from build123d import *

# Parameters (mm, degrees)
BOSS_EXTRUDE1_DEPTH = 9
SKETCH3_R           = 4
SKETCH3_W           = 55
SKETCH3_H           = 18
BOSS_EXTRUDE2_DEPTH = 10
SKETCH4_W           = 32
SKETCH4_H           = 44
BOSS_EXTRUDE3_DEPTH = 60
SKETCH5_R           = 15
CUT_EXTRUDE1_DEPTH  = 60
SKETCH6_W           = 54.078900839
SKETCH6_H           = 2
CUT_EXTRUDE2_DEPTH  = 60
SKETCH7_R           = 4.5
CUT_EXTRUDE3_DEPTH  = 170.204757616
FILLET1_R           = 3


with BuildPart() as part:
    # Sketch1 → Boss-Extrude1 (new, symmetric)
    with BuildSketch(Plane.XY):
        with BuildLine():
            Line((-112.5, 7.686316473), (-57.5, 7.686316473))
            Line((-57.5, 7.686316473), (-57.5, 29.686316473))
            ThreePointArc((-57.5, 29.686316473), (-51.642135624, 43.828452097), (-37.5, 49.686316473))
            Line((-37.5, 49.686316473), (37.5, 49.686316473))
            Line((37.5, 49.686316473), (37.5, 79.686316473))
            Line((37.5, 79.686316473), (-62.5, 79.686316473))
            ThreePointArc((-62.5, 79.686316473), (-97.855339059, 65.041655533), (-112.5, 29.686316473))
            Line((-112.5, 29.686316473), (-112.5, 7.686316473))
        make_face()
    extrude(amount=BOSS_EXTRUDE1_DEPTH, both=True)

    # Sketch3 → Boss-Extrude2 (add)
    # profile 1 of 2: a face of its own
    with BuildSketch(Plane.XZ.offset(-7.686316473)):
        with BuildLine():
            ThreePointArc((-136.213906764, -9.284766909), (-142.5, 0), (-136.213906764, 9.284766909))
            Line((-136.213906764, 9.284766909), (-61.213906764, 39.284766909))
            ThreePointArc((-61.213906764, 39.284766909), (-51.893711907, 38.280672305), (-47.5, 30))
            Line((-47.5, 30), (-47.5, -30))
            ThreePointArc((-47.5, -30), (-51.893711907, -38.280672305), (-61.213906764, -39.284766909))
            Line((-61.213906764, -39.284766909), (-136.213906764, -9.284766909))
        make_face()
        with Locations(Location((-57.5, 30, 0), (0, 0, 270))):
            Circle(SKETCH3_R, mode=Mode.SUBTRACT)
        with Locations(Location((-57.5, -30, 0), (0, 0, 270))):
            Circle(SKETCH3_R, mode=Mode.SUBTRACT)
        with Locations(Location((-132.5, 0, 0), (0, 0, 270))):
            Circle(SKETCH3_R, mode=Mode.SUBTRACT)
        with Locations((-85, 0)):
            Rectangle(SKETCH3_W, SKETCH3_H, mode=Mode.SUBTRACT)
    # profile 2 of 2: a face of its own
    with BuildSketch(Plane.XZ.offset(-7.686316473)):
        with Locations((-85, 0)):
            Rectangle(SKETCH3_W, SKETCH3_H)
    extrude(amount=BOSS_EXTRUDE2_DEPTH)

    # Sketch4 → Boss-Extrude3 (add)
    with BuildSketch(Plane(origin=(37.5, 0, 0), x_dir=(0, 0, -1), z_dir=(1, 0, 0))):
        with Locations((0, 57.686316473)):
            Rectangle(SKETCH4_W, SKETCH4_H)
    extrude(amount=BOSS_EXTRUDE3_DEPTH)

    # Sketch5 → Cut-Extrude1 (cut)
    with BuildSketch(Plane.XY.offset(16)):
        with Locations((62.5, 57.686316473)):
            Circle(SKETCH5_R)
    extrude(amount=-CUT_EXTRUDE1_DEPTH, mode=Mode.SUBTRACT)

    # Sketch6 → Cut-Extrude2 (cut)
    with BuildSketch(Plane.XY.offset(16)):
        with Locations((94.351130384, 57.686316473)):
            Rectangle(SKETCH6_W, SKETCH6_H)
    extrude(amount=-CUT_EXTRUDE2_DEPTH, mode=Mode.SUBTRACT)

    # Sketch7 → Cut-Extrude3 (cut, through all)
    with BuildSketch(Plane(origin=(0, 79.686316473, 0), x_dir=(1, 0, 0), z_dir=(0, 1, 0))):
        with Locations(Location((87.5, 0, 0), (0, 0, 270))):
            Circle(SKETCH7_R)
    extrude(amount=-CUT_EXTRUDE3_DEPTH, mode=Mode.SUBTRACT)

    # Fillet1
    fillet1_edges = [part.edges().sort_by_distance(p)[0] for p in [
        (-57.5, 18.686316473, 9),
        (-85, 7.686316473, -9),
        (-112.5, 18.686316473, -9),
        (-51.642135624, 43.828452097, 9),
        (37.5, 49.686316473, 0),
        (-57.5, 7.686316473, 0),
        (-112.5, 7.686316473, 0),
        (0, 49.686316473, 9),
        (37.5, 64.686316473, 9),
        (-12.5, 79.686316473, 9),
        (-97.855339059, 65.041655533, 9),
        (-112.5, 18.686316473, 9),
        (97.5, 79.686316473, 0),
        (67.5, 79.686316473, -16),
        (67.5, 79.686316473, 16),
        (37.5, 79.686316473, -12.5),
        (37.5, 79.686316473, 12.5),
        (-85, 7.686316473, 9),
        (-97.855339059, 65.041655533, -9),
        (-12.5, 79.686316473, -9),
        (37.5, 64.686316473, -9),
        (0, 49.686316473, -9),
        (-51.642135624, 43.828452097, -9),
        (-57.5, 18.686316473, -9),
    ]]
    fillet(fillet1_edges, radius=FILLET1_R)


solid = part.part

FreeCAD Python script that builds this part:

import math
import FreeCAD as App
import Part
import Sketcher


def edges_at(feature, points):
    """Names of the edges that pass closest to the given points."""
    edges = feature.Shape.Edges
    near = lambda p: min(range(len(edges)), key=lambda i: edges[i].distToShape(Part.Vertex(*p))[0])
    return sorted({f"Edge{near(p) + 1}" for p in points})


def add_polygon(sketch, points):
    """Adds a closed chain of lines whose ends are joined by coincident constraints."""
    first, n = sketch.GeometryCount, len(points)
    for a, b in zip(points, points[1:] + points[:1]):
        sketch.addGeometry(Part.LineSegment(App.Vector(*a, 0), App.Vector(*b, 0)), False)
    for i in range(n):
        sketch.addConstraint(Sketcher.Constraint("Coincident", first + i, 2, first + (i + 1) % n, 1))

doc = App.newDocument("Part")
body = doc.addObject("PartDesign::Body", "Body")

# Sketch on XY plane
sketch1 = doc.addObject("Sketcher::SketchObject", "Sketch")
body.addObject(sketch1)
sketch1.AttachmentSupport = (doc.XY_Plane, [""])
sketch1.MapMode = "FlatFace"
sketch1.addGeometry([
    Part.LineSegment(App.Vector(-112, 8, 0), App.Vector(-58, 8, 0)),  # 0
    Part.LineSegment(App.Vector(-58, 8, 0), App.Vector(-58, 30, 0)),  # 1
    Part.ArcOfCircle(Part.Circle(App.Vector(-38, 30, 0), App.Vector(0, 0, 1), 20), math.radians(90), math.radians(180)),  # 2
    Part.LineSegment(App.Vector(-38, 50, 0), App.Vector(38, 50, 0)),  # 3
    Part.LineSegment(App.Vector(38, 50, 0), App.Vector(38, 80, 0)),  # 4
    Part.LineSegment(App.Vector(38, 80, 0), App.Vector(-62, 80, 0)),  # 5
    Part.ArcOfCircle(Part.Circle(App.Vector(-63, 30, 0), App.Vector(0, 0, 1), 50), math.radians(90), math.radians(180)),  # 6
    Part.LineSegment(App.Vector(-112, 30, 0), App.Vector(-112, 8, 0)),  # 7
], False)
sketch1.addConstraint([
    Sketcher.Constraint("Coincident", 0, 2, 1, 1),
    Sketcher.Constraint("Tangent", 1, 2, 2, 2),
    Sketcher.Constraint("Tangent", 2, 1, 3, 1),
    Sketcher.Constraint("Coincident", 3, 2, 4, 1),
    Sketcher.Constraint("Coincident", 4, 2, 5, 1),
    Sketcher.Constraint("Tangent", 5, 2, 6, 1),
    Sketcher.Constraint("Tangent", 6, 2, 7, 1),
    Sketcher.Constraint("Coincident", 7, 2, 0, 1),
    Sketcher.Constraint("Horizontal", 0),
    Sketcher.Constraint("Vertical", 1),
    Sketcher.Constraint("Horizontal", 3),
    Sketcher.Constraint("Vertical", 4),
    Sketcher.Constraint("Horizontal", 5),
    Sketcher.Constraint("Vertical", 7),
    Sketcher.Constraint("Horizontal", 2, 3, 6, 3),
    Sketcher.Constraint("Radius", 2, 20.0),
    Sketcher.Constraint("Radius", 6, 50.0),
    Sketcher.Constraint("DistanceX", 0, 1, 0, 2, 55.0),
    Sketcher.Constraint("DistanceX", 3, 1, 3, 2, 75.0),
    Sketcher.Constraint("DistanceY", 1, 1, 1, 2, 22.0),
    Sketcher.Constraint("DistanceX", 2, 3, -1, 1, 37.5),
    Sketcher.Constraint("DistanceY", -1, 1, 2, 3, 29.686316),
])
pad1 = doc.addObject("PartDesign::Pad", "Pad")
body.addObject(pad1)
pad1.Profile = sketch1
pad1.Length = 18
pad1.Midplane = True

# Sketch on XZ plane
sketch2 = doc.addObject("Sketcher::SketchObject", "Sketch001")
body.addObject(sketch2)
sketch2.AttachmentSupport = (doc.XZ_Plane, [""])
sketch2.MapMode = "FlatFace"
sketch2.AttachmentOffset = App.Placement(App.Vector(0, 0, -7.686316), App.Rotation())
sketch2.addGeometry([
    Part.ArcOfCircle(Part.Circle(App.Vector(-132.5, 0, 0), App.Vector(0, 0, 1), 10), math.radians(112), math.radians(248)),  # 0
    Part.LineSegment(App.Vector(-136.2, -9.3, 0), App.Vector(-61.2, -39.3, 0)),  # 1
    Part.ArcOfCircle(Part.Circle(App.Vector(-57.5, -30, 0), App.Vector(0, 0, 1), 10), math.radians(-112), math.radians(0)),  # 2
    Part.LineSegment(App.Vector(-47.5, -30, 0), App.Vector(-47.5, 30, 0)),  # 3
    Part.ArcOfCircle(Part.Circle(App.Vector(-57.5, 30, 0), App.Vector(0, 0, 1), 10), math.radians(0), math.radians(112)),  # 4
    Part.LineSegment(App.Vector(-61.2, 39.3, 0), App.Vector(-136.2, 9.3, 0)),  # 5
    Part.Circle(App.Vector(-57.5, -30, 0), App.Vector(0, 0, 1), 4),  # 6
    Part.Circle(App.Vector(-57.5, 30, 0), App.Vector(0, 0, 1), 4),  # 7
    Part.Circle(App.Vector(-132.5, 0, 0), App.Vector(0, 0, 1), 4),  # 8
], False)
sketch2.addConstraint([
    Sketcher.Constraint("Tangent", 0, 2, 1, 1),
    Sketcher.Constraint("Tangent", 1, 2, 2, 1),
    Sketcher.Constraint("Tangent", 2, 2, 3, 1),
    Sketcher.Constraint("Tangent", 3, 2, 4, 1),
    Sketcher.Constraint("Tangent", 4, 2, 5, 1),
    Sketcher.Constraint("Tangent", 5, 2, 0, 1),
    Sketcher.Constraint("Vertical", 3),
    Sketcher.Constraint("Coincident", 6, 3, 2, 3),
    Sketcher.Constraint("Coincident", 7, 3, 4, 3),
    Sketcher.Constraint("Coincident", 8, 3, 0, 3),
    Sketcher.Constraint("Equal", 0, 2),
    Sketcher.Constraint("Equal", 2, 4),
    Sketcher.Constraint("Equal", 6, 7),
    Sketcher.Constraint("Equal", 7, 8),
    Sketcher.Constraint("Symmetric", 1, 2, 4, 2, -1),
    Sketcher.Constraint("Diameter", 6, 8.0),
    Sketcher.Constraint("Radius", 0, 10.0),
    Sketcher.Constraint("DistanceY", 3, 1, 3, 2, 60.0),
    Sketcher.Constraint("DistanceX", 0, 3, 2, 3, 75.0),
    Sketcher.Constraint("DistanceX", 0, 3, -1, 1, 132.5),
])
pad2 = doc.addObject("PartDesign::Pad", "Pad001")
body.addObject(pad2)
pad2.Profile = sketch2
pad2.Length = 10

# Sketch on YZ plane
sketch3 = doc.addObject("Sketcher::SketchObject", "Sketch002")
body.addObject(sketch3)
sketch3.AttachmentSupport = (doc.YZ_Plane, [""])
sketch3.MapMode = "FlatFace"
sketch3.AttachmentOffset = App.Placement(App.Vector(0, 0, 37.5), App.Rotation())
add_polygon(sketch3, [(80, 16), (36, 16), (36, -16), (80, -16)])  # lines 0-3
sketch3.addConstraint([
    Sketcher.Constraint("Horizontal", 0),
    Sketcher.Constraint("Vertical", 1),
    Sketcher.Constraint("Horizontal", 2),
    Sketcher.Constraint("Vertical", 3),
    Sketcher.Constraint("DistanceX", 0, 2, 0, 1, 44.0),
    Sketcher.Constraint("DistanceY", 1, 2, 1, 1, 32.0),
    Sketcher.Constraint("DistanceY", -1, 1, 0, 2, 16.0),
    Sketcher.Constraint("DistanceX", -1, 1, 0, 2, 35.686316),
])
pad3 = doc.addObject("PartDesign::Pad", "Pad002")
body.addObject(pad3)
pad3.Profile = sketch3
pad3.Length = 60

# Sketch on XY plane
sketch4 = doc.addObject("Sketcher::SketchObject", "Sketch003")
body.addObject(sketch4)
sketch4.AttachmentSupport = (doc.XY_Plane, [""])
sketch4.MapMode = "FlatFace"
sketch4.AttachmentOffset = App.Placement(App.Vector(0, 0, 16), App.Rotation())
sketch4.addGeometry(Part.Circle(App.Vector(62, 58, 0), App.Vector(0, 0, 1), 15), False)
sketch4.addConstraint([
    Sketcher.Constraint("Diameter", 0, 30.0),
    Sketcher.Constraint("DistanceX", -1, 1, 0, 3, 62.5),
    Sketcher.Constraint("DistanceY", -1, 1, 0, 3, 57.686316),
])
pocket1 = doc.addObject("PartDesign::Pocket", "Pocket")
body.addObject(pocket1)
pocket1.Profile = sketch4
pocket1.Length = 60

# Sketch on XY plane
sketch5 = doc.addObject("Sketcher::SketchObject", "Sketch004")
body.addObject(sketch5)
sketch5.AttachmentSupport = (doc.XY_Plane, [""])
sketch5.MapMode = "FlatFace"
sketch5.AttachmentOffset = App.Placement(App.Vector(0, 0, 16), App.Rotation())
add_polygon(sketch5, [(67.3, 58.7), (67.3, 56.7), (121.4, 56.7), (121.4, 58.7)])  # lines 0-3
sketch5.addConstraint([
    Sketcher.Constraint("Vertical", 0),
    Sketcher.Constraint("Horizontal", 1),
    Sketcher.Constraint("Vertical", 2),
    Sketcher.Constraint("Horizontal", 3),
    Sketcher.Constraint("DistanceY", 0, 2, 0, 1, 2.0),
    Sketcher.Constraint("DistanceX", 1, 1, 1, 2, 54.078901),
    Sketcher.Constraint("DistanceX", -1, 1, 0, 2, 67.31168),
    Sketcher.Constraint("DistanceY", -1, 1, 0, 2, 56.686316),
])
pocket2 = doc.addObject("PartDesign::Pocket", "Pocket001")
body.addObject(pocket2)
pocket2.Profile = sketch5
pocket2.Length = 60

# Sketch on XZ plane
sketch6 = doc.addObject("Sketcher::SketchObject", "Sketch005")
body.addObject(sketch6)
sketch6.AttachmentSupport = (doc.XZ_Plane, [""])
sketch6.MapMode = "FlatFace"
sketch6.AttachmentOffset = App.Placement(App.Vector(0, 0, -79.686316), App.Rotation())
sketch6.addGeometry(Part.Circle(App.Vector(87.5, 0, 0), App.Vector(0, 0, 1), 4.5), False)
sketch6.addConstraint([
    Sketcher.Constraint("PointOnObject", 0, 3, -1),
    Sketcher.Constraint("Diameter", 0, 9.0),
    Sketcher.Constraint("DistanceX", -1, 1, 0, 3, 87.5),
])
pocket3 = doc.addObject("PartDesign::Pocket", "Pocket002")
body.addObject(pocket3)
pocket3.Profile = sketch6
pocket3.Type = "ThroughAll"
pocket3.Reversed = True
doc.recompute()

fillet = doc.addObject("PartDesign::Fillet", "Fillet")
body.addObject(fillet)
fillet.Base = (pocket3, edges_at(pocket3, [
    (-57.5, 18.686, 9),
    (-85, 7.686, -9),
    (-112.5, 18.686, -9),
    (-51.642, 43.828, 9),
    (37.5, 49.686, 0),
    (-57.5, 7.686, 0),
    (-112.5, 7.686, 0),
    (0, 49.686, 9),
    (37.5, 64.686, 9),
    (-12.5, 79.686, 9),
    (-97.855, 65.042, 9),
    (-112.5, 18.686, 9),
    (97.5, 79.686, 0),
    (67.5, 79.686, -16),
    (67.5, 79.686, 16),
    (37.5, 79.686, -12.5),
    (37.5, 79.686, 12.5),
    (-85, 7.686, 9),
    (-97.855, 65.042, -9),
    (-12.5, 79.686, -9),
    (37.5, 64.686, -9),
    (0, 49.686, -9),
    (-51.642, 43.828, -9),
    (-57.5, 18.686, -9),
]))
fillet.Radius = 3

doc.recompute()
